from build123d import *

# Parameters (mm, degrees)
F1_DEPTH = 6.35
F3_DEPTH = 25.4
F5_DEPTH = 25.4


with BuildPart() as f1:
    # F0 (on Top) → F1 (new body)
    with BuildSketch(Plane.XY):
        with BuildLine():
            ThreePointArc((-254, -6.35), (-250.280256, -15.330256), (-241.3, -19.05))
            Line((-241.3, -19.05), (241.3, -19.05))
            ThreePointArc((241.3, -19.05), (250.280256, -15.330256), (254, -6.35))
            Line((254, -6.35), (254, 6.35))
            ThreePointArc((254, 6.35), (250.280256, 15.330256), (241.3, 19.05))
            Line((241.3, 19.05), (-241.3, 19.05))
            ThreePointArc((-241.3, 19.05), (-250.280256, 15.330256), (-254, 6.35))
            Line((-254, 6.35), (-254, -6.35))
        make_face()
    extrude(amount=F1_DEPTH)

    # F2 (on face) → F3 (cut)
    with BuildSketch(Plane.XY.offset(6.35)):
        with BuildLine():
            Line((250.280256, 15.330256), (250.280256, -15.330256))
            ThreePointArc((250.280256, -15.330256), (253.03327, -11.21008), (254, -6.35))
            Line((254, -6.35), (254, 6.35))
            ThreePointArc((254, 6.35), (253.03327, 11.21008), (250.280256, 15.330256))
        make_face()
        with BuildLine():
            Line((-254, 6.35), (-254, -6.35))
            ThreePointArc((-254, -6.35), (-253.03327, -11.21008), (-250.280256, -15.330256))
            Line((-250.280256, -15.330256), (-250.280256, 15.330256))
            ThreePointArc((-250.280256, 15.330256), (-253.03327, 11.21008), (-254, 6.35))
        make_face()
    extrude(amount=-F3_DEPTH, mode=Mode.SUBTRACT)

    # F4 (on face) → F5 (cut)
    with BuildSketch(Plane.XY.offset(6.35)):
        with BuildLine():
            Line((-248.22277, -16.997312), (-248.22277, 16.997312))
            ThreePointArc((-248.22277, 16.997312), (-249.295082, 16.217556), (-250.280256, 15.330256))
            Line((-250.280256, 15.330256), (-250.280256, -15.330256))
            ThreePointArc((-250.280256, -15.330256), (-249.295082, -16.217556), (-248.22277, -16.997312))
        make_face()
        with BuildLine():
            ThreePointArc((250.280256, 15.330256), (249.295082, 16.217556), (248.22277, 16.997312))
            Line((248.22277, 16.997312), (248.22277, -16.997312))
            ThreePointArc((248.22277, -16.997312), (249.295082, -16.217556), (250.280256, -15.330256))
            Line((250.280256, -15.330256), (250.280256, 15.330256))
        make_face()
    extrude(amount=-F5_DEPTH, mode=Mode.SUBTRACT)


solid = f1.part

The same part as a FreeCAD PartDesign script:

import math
import FreeCAD as App
import Part
import Sketcher

V = App.Vector
Q = App.Units.Quantity

doc = App.newDocument("Part")
params = doc.addObject("Spreadsheet::Sheet", "Params")
for row, (alias, value) in enumerate([
    ("sketch1_radius", "0.5 in"),
    ("sketch1_width", "19 in"),
    ("sketch1_height", "0.5 in"),
    ("pad1_length", "0.25 in"),
    ("sketch2_radius", "0.4999999 in"),
    ("sketch2_height", "0.5 in"),
    ("pocket1_length", "1 in"),
    ("pocket2_length", "1 in"),
], start=1):
    params.set(f"A{row}", alias)
    params.set(f"B{row}", "=" + value)
    params.setAlias(f"B{row}", alias)

body = doc.addObject("PartDesign::Body", "Body")

sketch1 = doc.addObject("Sketcher::SketchObject", "Sketch")
body.addObject(sketch1)
sketch1.AttachmentSupport = (doc.XY_Plane, [""])
sketch1.MapMode = "FlatFace"
sketch1.addGeometry(Part.ArcOfCircle(Part.Circle(V(-241, -6, 0), V(0, 0, 1), 13), math.radians(-180), math.radians(-90)), False)
sketch1.addGeometry(Part.LineSegment(V(-241, -19, 0), V(241, -19, 0)), False)
sketch1.addGeometry(Part.ArcOfCircle(Part.Circle(V(241, -6, 0), V(0, 0, 1), 13), math.radians(-90), math.radians(0)), False)
sketch1.addGeometry(Part.LineSegment(V(254, -6, 0), V(254, 6, 0)), False)
sketch1.addGeometry(Part.ArcOfCircle(Part.Circle(V(241, 6, 0), V(0, 0, 1), 13), math.radians(0), math.radians(90)), False)
sketch1.addGeometry(Part.LineSegment(V(241, 19, 0), V(-241, 19, 0)), False)
sketch1.addGeometry(Part.ArcOfCircle(Part.Circle(V(-241, 6, 0), V(0, 0, 1), 13), math.radians(90), math.radians(180)), False)
sketch1.addGeometry(Part.LineSegment(V(-254, 6, 0), V(-254, -6, 0)), False)
sketch1.addConstraint(Sketcher.Constraint("Tangent", 0, 2, 1, 1))
sketch1.addConstraint(Sketcher.Constraint("Tangent", 1, 2, 2, 1))
sketch1.addConstraint(Sketcher.Constraint("Tangent", 2, 2, 3, 1))
sketch1.addConstraint(Sketcher.Constraint("Tangent", 3, 2, 4, 1))
sketch1.addConstraint(Sketcher.Constraint("Tangent", 4, 2, 5, 1))
sketch1.addConstraint(Sketcher.Constraint("Tangent", 5, 2, 6, 1))
sketch1.addConstraint(Sketcher.Constraint("Tangent", 6, 2, 7, 1))
sketch1.addConstraint(Sketcher.Constraint("Tangent", 7, 2, 0, 1))
sketch1.addConstraint(Sketcher.Constraint("Horizontal", 1))
sketch1.addConstraint(Sketcher.Constraint("Vertical", 3))
sketch1.addConstraint(Sketcher.Constraint("Horizontal", 5))
sketch1.addConstraint(Sketcher.Constraint("Vertical", 7))
sketch1.addConstraint(Sketcher.Constraint("Equal", 0, 2))
sketch1.addConstraint(Sketcher.Constraint("Equal", 2, 4))
sketch1.addConstraint(Sketcher.Constraint("Equal", 4, 6))
sketch1.addConstraint(Sketcher.Constraint("Symmetric", 0, 3, 4, 3, -1, 1))
sketch1.addConstraint(Sketcher.Constraint("Radius", 0, Q("0.5 in")))
sketch1.addConstraint(Sketcher.Constraint("DistanceX", 1, 1, 1, 2, Q("19 in")))
sketch1.addConstraint(Sketcher.Constraint("DistanceY", 3, 1, 3, 2, Q("0.5 in")))
sketch1.setExpression("Constraints[16]", "Params.sketch1_radius")
sketch1.setExpression("Constraints[17]", "Params.sketch1_width")
sketch1.setExpression("Constraints[18]", "Params.sketch1_height")
pad1 = doc.addObject("PartDesign::Pad", "Pad")
body.addObject(pad1)
pad1.Profile = sketch1
pad1.setExpression("Length", "Params.pad1_length")

sketch2 = doc.addObject("Sketcher::SketchObject", "Sketch001")
body.addObject(sketch2)
sketch2.AttachmentSupport = (doc.XY_Plane, [""])
sketch2.MapMode = "FlatFace"
sketch2.AttachmentOffset = App.Placement(V(0, 0, 0.25 * 25.4), App.Rotation())
sketch2.addGeometry(Part.LineSegment(V(250, 15, 0), V(250, -15, 0)), False)
sketch2.addGeometry(Part.ArcOfCircle(Part.Circle(V(241, -6, 0), V(0, 0, 1), 13), math.radians(-45), math.radians(0)), False)
sketch2.addGeometry(Part.LineSegment(V(254, -6, 0), V(254, 6, 0)), False)
sketch2.addGeometry(Part.ArcOfCircle(Part.Circle(V(241, 6, 0), V(0, 0, 1), 13), math.radians(0), math.radians(45)), False)
sketch2.addGeometry(Part.LineSegment(V(-254, 6, 0), V(-254, -6, 0)), False)
sketch2.addGeometry(Part.ArcOfCircle(Part.Circle(V(-241, -6, 0), V(0, 0, 1), 13), math.radians(180), math.radians(225)), False)
sketch2.addGeometry(Part.LineSegment(V(-250, -15, 0), V(-250, 15, 0)), False)
sketch2.addGeometry(Part.ArcOfCircle(Part.Circle(V(-241, 6, 0), V(0, 0, 1), 13), math.radians(135), math.radians(180)), False)
sketch2.addConstraint(Sketcher.Constraint("Coincident", 0, 2, 1, 1))
sketch2.addConstraint(Sketcher.Constraint("Tangent", 1, 2, 2, 1))
sketch2.addConstraint(Sketcher.Constraint("Tangent", 2, 2, 3, 1))
sketch2.addConstraint(Sketcher.Constraint("Coincident", 3, 2, 0, 1))
sketch2.addConstraint(Sketcher.Constraint("Tangent", 4, 2, 5, 1))
sketch2.addConstraint(Sketcher.Constraint("Coincident", 5, 2, 6, 1))
sketch2.addConstraint(Sketcher.Constraint("Coincident", 6, 2, 7, 1))
sketch2.addConstraint(Sketcher.Constraint("Tangent", 7, 2, 4, 1))
sketch2.addConstraint(Sketcher.Constraint("Vertical", 0))
sketch2.addConstraint(Sketcher.Constraint("Vertical", 2))
sketch2.addConstraint(Sketcher.Constraint("Vertical", 4))
sketch2.addConstraint(Sketcher.Constraint("Vertical", 6))
sketch2.addConstraint(Sketcher.Constraint("Equal", 1, 3))
sketch2.addConstraint(Sketcher.Constraint("Equal", 3, 5))
sketch2.addConstraint(Sketcher.Constraint("Equal", 5, 7))
sketch2.addConstraint(Sketcher.Constraint("Symmetric", 3, 3, 5, 3, -1, 1))
sketch2.addConstraint(Sketcher.Constraint("Symmetric", 0, 2, 6, 2, -1, 1))
sketch2.addConstraint(Sketcher.Constraint("Horizontal", 1, 3, 5, 3))
sketch2.addConstraint(Sketcher.Constraint("Radius", 1, Q("0.4999999 in")))
sketch2.addConstraint(Sketcher.Constraint("DistanceY", 2, 1, 2, 2, Q("0.5 in")))
sketch2.addConstraint(Sketcher.Constraint("DistanceX", -1, 1, 1, 2, Q("10 in")))
sketch2.addConstraint(Sketcher.Constraint("DistanceY", 0, 2, 0, 1, 30.660512))
sketch2.setExpression("Constraints[18]", "Params.sketch2_radius")
sketch2.setExpression("Constraints[19]", "Params.sketch2_height")
pocket1 = doc.addObject("PartDesign::Pocket", "Pocket")
body.addObject(pocket1)
pocket1.Profile = sketch2
pocket1.setExpression("Length", "Params.pocket1_length")

sketch3 = doc.addObject("Sketcher::SketchObject", "Sketch002")
body.addObject(sketch3)
sketch3.AttachmentSupport = (doc.XY_Plane, [""])
sketch3.MapMode = "FlatFace"
sketch3.AttachmentOffset = App.Placement(V(0, 0, 0.25 * 25.4), App.Rotation())
sketch3.addGeometry(Part.LineSegment(V(-248.2, -17, 0), V(-248.2, 17, 0)), False)
sketch3.addGeometry(Part.ArcOfCircle(Part.Circle(V(-241.3, 6.4, 0), V(0, 0, 1), 12.7), math.radians(123.03), math.radians(135)), False)
sketch3.addGeometry(Part.LineSegment(V(-250.3, 15.3, 0), V(-250.3, -15.3, 0)), False)
sketch3.addGeometry(Part.ArcOfCircle(Part.Circle(V(-241.3, -6.4, 0), V(0, 0, 1), 12.7), math.radians(-135), math.radians(-123.03)), False)
sketch3.addGeometry(Part.ArcOfCircle(Part.Circle(V(241.3, 6.4, 0), V(0, 0, 1), 12.7), math.radians(45), math.radians(56.97)), False)
sketch3.addGeometry(Part.LineSegment(V(248.2, 17, 0), V(248.2, -17, 0)), False)
sketch3.addGeometry(Part.ArcOfCircle(Part.Circle(V(241.3, -6.4, 0), V(0, 0, 1), 12.7), math.radians(-56.97), math.radians(-45)), False)
sketch3.addGeometry(Part.LineSegment(V(250.3, -15.3, 0), V(250.3, 15.3, 0)), False)
sketch3.addConstraint(Sketcher.Constraint("Coincident", 0, 2, 1, 1))
sketch3.addConstraint(Sketcher.Constraint("Coincident", 1, 2, 2, 1))
sketch3.addConstraint(Sketcher.Constraint("Coincident", 2, 2, 3, 1))
sketch3.addConstraint(Sketcher.Constraint("Coincident", 3, 2, 0, 1))
sketch3.addConstraint(Sketcher.Constraint("Coincident", 4, 2, 5, 1))
sketch3.addConstraint(Sketcher.Constraint("Coincident", 5, 2, 6, 1))
sketch3.addConstraint(Sketcher.Constraint("Coincident", 6, 2, 7, 1))
sketch3.addConstraint(Sketcher.Constraint("Coincident", 7, 2, 4, 1))
sketch3.addConstraint(Sketcher.Constraint("Vertical", 0))
sketch3.addConstraint(Sketcher.Constraint("Vertical", 2))
sketch3.addConstraint(Sketcher.Constraint("Vertical", 5))
sketch3.addConstraint(Sketcher.Constraint("Vertical", 7))
sketch3.addConstraint(Sketcher.Constraint("Equal", 1, 3))
sketch3.addConstraint(Sketcher.Constraint("Equal", 3, 4))
sketch3.addConstraint(Sketcher.Constraint("Equal", 4, 6))
sketch3.addConstraint(Sketcher.Constraint("Symmetric", 3, 3, 4, 3, -1, 1))
sketch3.addConstraint(Sketcher.Constraint("Symmetric", 1, 3, 6, 3, -1, 1))
sketch3.addConstraint(Sketcher.Constraint("Symmetric", 1, 3, 4, 3, -2))
sketch3.addConstraint(Sketcher.Constraint("Horizontal", 0, 2, 4, 2))
sketch3.addConstraint(Sketcher.Constraint("Horizontal", 2, 2, 6, 2))
sketch3.addConstraint(Sketcher.Constraint("DistanceX", 1, 3, -1, 1, Q("9.5000002 in")))
sketch3.addConstraint(Sketcher.Constraint("Radius", 1, 12.699992))
sketch3.addConstraint(Sketcher.Constraint("DistanceX", 0, 2, 4, 2, Q("19.5451 in")))
sketch3.addConstraint(Sketcher.Constraint("DistanceY", 0, 1, 0, 2, 33.994624))
sketch3.addConstraint(Sketcher.Constraint("DistanceY", 2, 2, 2, 1, 30.660512))
pocket2 = doc.addObject("PartDesign::Pocket", "Pocket001")
body.addObject(pocket2)
pocket2.Profile = sketch3
pocket2.setExpression("Length", "Params.pocket2_length")

doc.recompute()
